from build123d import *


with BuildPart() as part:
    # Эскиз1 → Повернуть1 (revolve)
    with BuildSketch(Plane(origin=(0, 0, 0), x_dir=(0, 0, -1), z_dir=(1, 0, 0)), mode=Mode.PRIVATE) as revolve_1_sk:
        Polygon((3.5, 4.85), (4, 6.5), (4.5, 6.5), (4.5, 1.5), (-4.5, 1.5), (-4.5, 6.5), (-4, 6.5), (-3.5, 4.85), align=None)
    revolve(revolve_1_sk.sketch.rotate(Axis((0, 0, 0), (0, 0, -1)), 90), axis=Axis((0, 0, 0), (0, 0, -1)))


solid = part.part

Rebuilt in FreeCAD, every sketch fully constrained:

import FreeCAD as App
import Part
import Sketcher

V = App.Vector
Q = App.Units.Quantity

doc = App.newDocument("Part")
body = doc.addObject("PartDesign::Body", "Body")

sketch1 = body.newObject("Sketcher::SketchObject", "Sketch")
sketch1.AttachmentSupport = (doc.getObject("YZ_Plane"), [""])
sketch1.MapMode = "FlatFace"
sketch1.addGeometry([
    Part.LineSegment(V(6.5, -4, 0), V(4.85, -3.5, 0)),
    Part.LineSegment(V(4.85, -3.5, 0), V(4.85, 3.5, 0)),
    Part.LineSegment(V(4.85, 3.5, 0), V(6.5, 4, 0)),
    Part.LineSegment(V(6.5, 4, 0), V(6.5, 4.5, 0)),
    Part.LineSegment(V(6.5, 4.5, 0), V(1.5, 4.5, 0)),
    Part.LineSegment(V(1.5, 4.5, 0), V(1.5, -4.5, 0)),
    Part.LineSegment(V(1.5, -4.5, 0), V(6.5, -4.5, 0)),
    Part.LineSegment(V(6.5, -4.5, 0), V(6.5, -4, 0)),
], False)
sketch1.addConstraint([
    Sketcher.Constraint("Coincident", 0, 2, 1, 1),
    Sketcher.Constraint("Coincident", 1, 2, 2, 1),
    Sketcher.Constraint("Coincident", 2, 2, 3, 1),
    Sketcher.Constraint("Coincident", 3, 2, 4, 1),
    Sketcher.Constraint("Coincident", 4, 2, 5, 1),
    Sketcher.Constraint("Coincident", 5, 2, 6, 1),
    Sketcher.Constraint("Coincident", 6, 2, 7, 1),
    Sketcher.Constraint("Coincident", 7, 2, 0, 1),
    Sketcher.Constraint("Vertical", 1),
    Sketcher.Constraint("Vertical", 3),
    Sketcher.Constraint("Horizontal", 4),
    Sketcher.Constraint("Vertical", 5),
    Sketcher.Constraint("Horizontal", 6),
    Sketcher.Constraint("Vertical", 7),
    Sketcher.Constraint("Symmetric", 3, 2, 6, 2, -1),
    Sketcher.Constraint("Equal", 3, 7),
    Sketcher.Constraint("Equal", 0, 2),
    Sketcher.Constraint("DistanceX", 4, 2, 4, 1, Q("5 mm")),
    Sketcher.Constraint("DistanceY", 1, 1, 1, 2, Q("7 mm")),
    Sketcher.Constraint("DistanceY", 5, 2, 5, 1, Q("9 mm")),
    Sketcher.Constraint("DistanceY", 3, 1, 3, 2, Q("0.5 mm")),
    Sketcher.Constraint("DistanceX", -1, 1, 2, 2, Q("6.5 mm")),
    Sketcher.Constraint("DistanceX", -1, 1, 0, 2, Q("4.85 mm")),
])
revolution = body.newObject("PartDesign::Revolution", "Revolution")
revolution.Profile = sketch1
revolution.ReferenceAxis = (sketch1, ["V_Axis"])
revolution.Angle = 360

doc.recompute()
